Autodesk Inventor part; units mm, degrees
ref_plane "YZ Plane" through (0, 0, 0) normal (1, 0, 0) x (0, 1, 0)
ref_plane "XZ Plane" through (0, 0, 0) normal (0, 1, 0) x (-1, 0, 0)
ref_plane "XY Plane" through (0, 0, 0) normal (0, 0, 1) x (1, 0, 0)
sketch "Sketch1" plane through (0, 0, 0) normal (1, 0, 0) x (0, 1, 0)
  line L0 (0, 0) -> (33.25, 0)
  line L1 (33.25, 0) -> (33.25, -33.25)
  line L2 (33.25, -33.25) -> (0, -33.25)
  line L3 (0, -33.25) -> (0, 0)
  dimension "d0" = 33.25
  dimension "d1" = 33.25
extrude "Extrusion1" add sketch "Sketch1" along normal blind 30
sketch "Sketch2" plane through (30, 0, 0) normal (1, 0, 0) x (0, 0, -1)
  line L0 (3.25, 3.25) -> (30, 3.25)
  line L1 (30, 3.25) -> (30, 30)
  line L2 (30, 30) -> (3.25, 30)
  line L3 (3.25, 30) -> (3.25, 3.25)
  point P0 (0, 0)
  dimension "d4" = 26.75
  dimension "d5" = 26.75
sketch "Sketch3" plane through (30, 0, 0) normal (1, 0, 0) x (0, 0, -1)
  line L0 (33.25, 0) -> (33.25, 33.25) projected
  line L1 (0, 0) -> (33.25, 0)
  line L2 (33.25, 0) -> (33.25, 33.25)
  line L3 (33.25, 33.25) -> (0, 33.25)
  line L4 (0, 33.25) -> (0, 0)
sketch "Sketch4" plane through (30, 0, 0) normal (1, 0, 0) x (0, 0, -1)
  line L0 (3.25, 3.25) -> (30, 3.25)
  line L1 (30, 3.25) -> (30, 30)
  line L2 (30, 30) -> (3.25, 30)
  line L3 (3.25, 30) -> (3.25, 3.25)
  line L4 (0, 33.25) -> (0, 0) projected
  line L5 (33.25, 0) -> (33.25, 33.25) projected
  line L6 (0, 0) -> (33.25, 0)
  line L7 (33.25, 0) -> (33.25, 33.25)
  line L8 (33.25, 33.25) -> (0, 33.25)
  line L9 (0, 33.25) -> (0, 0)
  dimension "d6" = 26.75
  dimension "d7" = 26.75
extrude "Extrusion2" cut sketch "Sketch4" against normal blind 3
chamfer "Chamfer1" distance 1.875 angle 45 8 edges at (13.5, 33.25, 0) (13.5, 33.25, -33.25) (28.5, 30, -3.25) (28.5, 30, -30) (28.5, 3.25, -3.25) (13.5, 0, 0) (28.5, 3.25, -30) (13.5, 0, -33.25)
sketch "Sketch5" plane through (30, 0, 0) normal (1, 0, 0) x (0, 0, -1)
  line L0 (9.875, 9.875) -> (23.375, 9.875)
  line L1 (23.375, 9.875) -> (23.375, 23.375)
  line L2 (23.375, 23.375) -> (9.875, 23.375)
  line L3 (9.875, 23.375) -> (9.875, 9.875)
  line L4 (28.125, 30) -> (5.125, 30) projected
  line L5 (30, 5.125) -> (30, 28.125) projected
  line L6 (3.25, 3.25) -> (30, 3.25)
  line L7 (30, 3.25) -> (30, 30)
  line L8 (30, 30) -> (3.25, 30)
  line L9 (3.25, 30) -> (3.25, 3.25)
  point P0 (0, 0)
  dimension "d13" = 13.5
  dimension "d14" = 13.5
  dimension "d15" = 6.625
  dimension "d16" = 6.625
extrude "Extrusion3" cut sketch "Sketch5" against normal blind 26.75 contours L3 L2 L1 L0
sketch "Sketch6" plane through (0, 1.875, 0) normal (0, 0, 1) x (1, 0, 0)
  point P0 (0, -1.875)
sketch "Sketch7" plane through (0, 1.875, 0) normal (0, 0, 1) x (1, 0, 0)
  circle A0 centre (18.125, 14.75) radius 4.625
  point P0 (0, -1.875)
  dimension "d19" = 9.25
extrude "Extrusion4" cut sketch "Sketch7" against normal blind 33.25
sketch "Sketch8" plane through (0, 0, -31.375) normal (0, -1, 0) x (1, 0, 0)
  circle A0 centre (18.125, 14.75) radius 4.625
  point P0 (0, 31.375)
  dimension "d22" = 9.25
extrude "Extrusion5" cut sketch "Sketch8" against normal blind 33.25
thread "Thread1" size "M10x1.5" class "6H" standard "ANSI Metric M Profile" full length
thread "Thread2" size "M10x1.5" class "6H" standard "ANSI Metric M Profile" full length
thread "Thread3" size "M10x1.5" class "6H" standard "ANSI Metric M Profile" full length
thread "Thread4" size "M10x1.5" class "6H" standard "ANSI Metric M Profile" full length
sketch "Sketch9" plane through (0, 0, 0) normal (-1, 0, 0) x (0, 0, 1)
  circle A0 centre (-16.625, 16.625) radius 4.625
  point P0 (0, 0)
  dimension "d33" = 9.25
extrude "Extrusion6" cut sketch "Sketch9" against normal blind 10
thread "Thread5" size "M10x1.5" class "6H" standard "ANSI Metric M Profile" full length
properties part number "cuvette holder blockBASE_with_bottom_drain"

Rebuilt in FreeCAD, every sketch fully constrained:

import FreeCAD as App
import Part
import Sketcher

V = App.Vector


def edges_at(feature, points):
    """Names of the edges that pass closest to the given points."""
    edges = feature.Shape.Edges
    near = lambda p: min(range(len(edges)), key=lambda i: edges[i].distToShape(Part.Vertex(*p))[0])
    return sorted({f"Edge{near(p) + 1}" for p in points})


def add_polygon(sketch, points):
    """Adds a closed chain of lines whose ends are joined by coincident constraints."""
    first, n = sketch.GeometryCount, len(points)
    for a, b in zip(points, points[1:] + points[:1]):
        sketch.addGeometry(Part.LineSegment(App.Vector(*a, 0), App.Vector(*b, 0)), False)
    for i in range(n):
        sketch.addConstraint(Sketcher.Constraint("Coincident", first + i, 2, first + (i + 1) % n, 1))

doc = App.newDocument("Part")
body = doc.addObject("PartDesign::Body", "Body")

sketch1 = body.newObject("Sketcher::SketchObject", "Sketch")
sketch1.AttachmentSupport = (doc.getObject("YZ_Plane"), [""])
sketch1.MapMode = "FlatFace"
add_polygon(sketch1, [(33.25, 0), (0, 0), (0, -33.25), (33.25, -33.25)])
sketch1.addConstraint([
    Sketcher.Constraint("Horizontal", 0),
    Sketcher.Constraint("Vertical", 1),
    Sketcher.Constraint("Horizontal", 2),
    Sketcher.Constraint("Vertical", 3),
    Sketcher.Constraint("Coincident", 0, 2, -1, 1),
    Sketcher.Constraint("Equal", 2, 1),
    Sketcher.Constraint("DistanceX", 0, 2, 0, 1, 33.25),
])
pad1 = body.newObject("PartDesign::Pad", "Pad")
pad1.Profile = sketch1
pad1.Length = 30

sketch2 = body.newObject("Sketcher::SketchObject", "Sketch001")
sketch2.AttachmentSupport = (doc.getObject("YZ_Plane"), [""])
sketch2.MapMode = "FlatFace"
sketch2.AttachmentOffset = App.Placement(V(0, 0, 30), App.Rotation())
add_polygon(sketch2, [(33.25, -33.25), (33.25, 0), (0, 0), (0, -33.25)])
add_polygon(sketch2, [(3.25, -30), (3.25, -3.25), (30, -3.25), (30, -30)])
sketch2.addConstraint([
    Sketcher.Constraint("Vertical", 0),
    Sketcher.Constraint("Horizontal", 1),
    Sketcher.Constraint("Vertical", 2),
    Sketcher.Constraint("Horizontal", 3),
    Sketcher.Constraint("Vertical", 4),
    Sketcher.Constraint("Horizontal", 5),
    Sketcher.Constraint("Vertical", 6),
    Sketcher.Constraint("Horizontal", 7),
    Sketcher.Constraint("Coincident", 1, 2, -1, 1),
    Sketcher.Constraint("Equal", 3, 0),
    Sketcher.Constraint("Equal", 7, 4),
    Sketcher.Constraint("DistanceX", 5, 1, 5, 2, 26.75),
    Sketcher.Constraint("DistanceX", -1, 1, 5, 2, 30.0),
    Sketcher.Constraint("DistanceY", 6, 2, -1, 1, 30.0),
    Sketcher.Constraint("DistanceX", 4, 2, 0, 2, 30.0),
])
pocket1 = body.newObject("PartDesign::Pocket", "Pocket")
pocket1.Profile = sketch2
pocket1.Length = 3
doc.recompute()

chamfer = body.newObject("PartDesign::Chamfer", "Chamfer")
chamfer.Base = (pocket1, edges_at(pocket1, [
    (13.5, 33.25, 0),
    (13.5, 33.25, -33.25),
    (28.5, 30, -3.25),
    (28.5, 30, -30),
    (28.5, 3.25, -3.25),
    (13.5, 0, 0),
    (28.5, 3.25, -30),
    (13.5, 0, -33.25),
]))
chamfer.Size = 1.875

sketch3 = body.newObject("Sketcher::SketchObject", "Sketch002")
sketch3.AttachmentSupport = (doc.getObject("YZ_Plane"), [""])
sketch3.MapMode = "FlatFace"
sketch3.AttachmentOffset = App.Placement(V(0, 0, 30), App.Rotation())
add_polygon(sketch3, [(23.375, -9.875), (9.875, -9.875), (9.875, -23.375), (23.375, -23.375)])
sketch3.addConstraint([
    Sketcher.Constraint("Horizontal", 0),
    Sketcher.Constraint("Vertical", 1),
    Sketcher.Constraint("Horizontal", 2),
    Sketcher.Constraint("Vertical", 3),
    Sketcher.Constraint("Equal", 2, 1),
    Sketcher.Constraint("DistanceX", 0, 2, 0, 1, 13.5),
    Sketcher.Constraint("DistanceX", -1, 1, 0, 2, 9.875),
    Sketcher.Constraint("DistanceY", 0, 2, -1, 1, 9.875),
])
pocket2 = body.newObject("PartDesign::Pocket", "Pocket001")
pocket2.Profile = sketch3
pocket2.Length = 26.75

sketch4 = body.newObject("Sketcher::SketchObject", "Sketch003")
sketch4.AttachmentSupport = (doc.getObject("XY_Plane"), [""])
sketch4.MapMode = "FlatFace"
sketch4.addGeometry(Part.Circle(V(18.125, 16.625, 0), V(0, 0, 1), 4.625), False)
sketch4.addConstraint([
    Sketcher.Constraint("Diameter", 0, 9.25),
    Sketcher.Constraint("DistanceX", -1, 1, 0, 3, 18.125),
    Sketcher.Constraint("DistanceY", -1, 1, 0, 3, 16.625),
])
pocket3 = body.newObject("PartDesign::Pocket", "Pocket002")
pocket3.Profile = sketch4
pocket3.Length = 33.25

sketch5 = body.newObject("Sketcher::SketchObject", "Sketch004")
sketch5.AttachmentSupport = (doc.getObject("XZ_Plane"), [""])
sketch5.MapMode = "FlatFace"
sketch5.addGeometry(Part.Circle(V(18.125, -16.625, 0), V(0, 0, 1), 4.625), False)
sketch5.addConstraint([
    Sketcher.Constraint("Diameter", 0, 9.25),
    Sketcher.Constraint("DistanceX", -1, 1, 0, 3, 18.125),
    Sketcher.Constraint("DistanceY", 0, 3, -1, 1, 16.625),
])
pocket4 = body.newObject("PartDesign::Pocket", "Pocket003")
pocket4.Profile = sketch5
pocket4.Length = 33.25

sketch6 = body.newObject("Sketcher::SketchObject", "Sketch005")
sketch6.AttachmentSupport = (doc.getObject("YZ_Plane"), [""])
sketch6.MapMode = "FlatFace"
sketch6.addGeometry(Part.Circle(V(16.625, -16.625, 0), V(0, 0, 1), 4.625), False)
sketch6.addConstraint([
    Sketcher.Constraint("Diameter", 0, 9.25),
    Sketcher.Constraint("DistanceX", -1, 1, 0, 3, 16.625),
    Sketcher.Constraint("DistanceY", 0, 3, -1, 1, 16.625),
])
pocket5 = body.newObject("PartDesign::Pocket", "Pocket004")
pocket5.Profile = sketch6
pocket5.Length = 10
pocket5.Reversed = True

doc.recompute()
